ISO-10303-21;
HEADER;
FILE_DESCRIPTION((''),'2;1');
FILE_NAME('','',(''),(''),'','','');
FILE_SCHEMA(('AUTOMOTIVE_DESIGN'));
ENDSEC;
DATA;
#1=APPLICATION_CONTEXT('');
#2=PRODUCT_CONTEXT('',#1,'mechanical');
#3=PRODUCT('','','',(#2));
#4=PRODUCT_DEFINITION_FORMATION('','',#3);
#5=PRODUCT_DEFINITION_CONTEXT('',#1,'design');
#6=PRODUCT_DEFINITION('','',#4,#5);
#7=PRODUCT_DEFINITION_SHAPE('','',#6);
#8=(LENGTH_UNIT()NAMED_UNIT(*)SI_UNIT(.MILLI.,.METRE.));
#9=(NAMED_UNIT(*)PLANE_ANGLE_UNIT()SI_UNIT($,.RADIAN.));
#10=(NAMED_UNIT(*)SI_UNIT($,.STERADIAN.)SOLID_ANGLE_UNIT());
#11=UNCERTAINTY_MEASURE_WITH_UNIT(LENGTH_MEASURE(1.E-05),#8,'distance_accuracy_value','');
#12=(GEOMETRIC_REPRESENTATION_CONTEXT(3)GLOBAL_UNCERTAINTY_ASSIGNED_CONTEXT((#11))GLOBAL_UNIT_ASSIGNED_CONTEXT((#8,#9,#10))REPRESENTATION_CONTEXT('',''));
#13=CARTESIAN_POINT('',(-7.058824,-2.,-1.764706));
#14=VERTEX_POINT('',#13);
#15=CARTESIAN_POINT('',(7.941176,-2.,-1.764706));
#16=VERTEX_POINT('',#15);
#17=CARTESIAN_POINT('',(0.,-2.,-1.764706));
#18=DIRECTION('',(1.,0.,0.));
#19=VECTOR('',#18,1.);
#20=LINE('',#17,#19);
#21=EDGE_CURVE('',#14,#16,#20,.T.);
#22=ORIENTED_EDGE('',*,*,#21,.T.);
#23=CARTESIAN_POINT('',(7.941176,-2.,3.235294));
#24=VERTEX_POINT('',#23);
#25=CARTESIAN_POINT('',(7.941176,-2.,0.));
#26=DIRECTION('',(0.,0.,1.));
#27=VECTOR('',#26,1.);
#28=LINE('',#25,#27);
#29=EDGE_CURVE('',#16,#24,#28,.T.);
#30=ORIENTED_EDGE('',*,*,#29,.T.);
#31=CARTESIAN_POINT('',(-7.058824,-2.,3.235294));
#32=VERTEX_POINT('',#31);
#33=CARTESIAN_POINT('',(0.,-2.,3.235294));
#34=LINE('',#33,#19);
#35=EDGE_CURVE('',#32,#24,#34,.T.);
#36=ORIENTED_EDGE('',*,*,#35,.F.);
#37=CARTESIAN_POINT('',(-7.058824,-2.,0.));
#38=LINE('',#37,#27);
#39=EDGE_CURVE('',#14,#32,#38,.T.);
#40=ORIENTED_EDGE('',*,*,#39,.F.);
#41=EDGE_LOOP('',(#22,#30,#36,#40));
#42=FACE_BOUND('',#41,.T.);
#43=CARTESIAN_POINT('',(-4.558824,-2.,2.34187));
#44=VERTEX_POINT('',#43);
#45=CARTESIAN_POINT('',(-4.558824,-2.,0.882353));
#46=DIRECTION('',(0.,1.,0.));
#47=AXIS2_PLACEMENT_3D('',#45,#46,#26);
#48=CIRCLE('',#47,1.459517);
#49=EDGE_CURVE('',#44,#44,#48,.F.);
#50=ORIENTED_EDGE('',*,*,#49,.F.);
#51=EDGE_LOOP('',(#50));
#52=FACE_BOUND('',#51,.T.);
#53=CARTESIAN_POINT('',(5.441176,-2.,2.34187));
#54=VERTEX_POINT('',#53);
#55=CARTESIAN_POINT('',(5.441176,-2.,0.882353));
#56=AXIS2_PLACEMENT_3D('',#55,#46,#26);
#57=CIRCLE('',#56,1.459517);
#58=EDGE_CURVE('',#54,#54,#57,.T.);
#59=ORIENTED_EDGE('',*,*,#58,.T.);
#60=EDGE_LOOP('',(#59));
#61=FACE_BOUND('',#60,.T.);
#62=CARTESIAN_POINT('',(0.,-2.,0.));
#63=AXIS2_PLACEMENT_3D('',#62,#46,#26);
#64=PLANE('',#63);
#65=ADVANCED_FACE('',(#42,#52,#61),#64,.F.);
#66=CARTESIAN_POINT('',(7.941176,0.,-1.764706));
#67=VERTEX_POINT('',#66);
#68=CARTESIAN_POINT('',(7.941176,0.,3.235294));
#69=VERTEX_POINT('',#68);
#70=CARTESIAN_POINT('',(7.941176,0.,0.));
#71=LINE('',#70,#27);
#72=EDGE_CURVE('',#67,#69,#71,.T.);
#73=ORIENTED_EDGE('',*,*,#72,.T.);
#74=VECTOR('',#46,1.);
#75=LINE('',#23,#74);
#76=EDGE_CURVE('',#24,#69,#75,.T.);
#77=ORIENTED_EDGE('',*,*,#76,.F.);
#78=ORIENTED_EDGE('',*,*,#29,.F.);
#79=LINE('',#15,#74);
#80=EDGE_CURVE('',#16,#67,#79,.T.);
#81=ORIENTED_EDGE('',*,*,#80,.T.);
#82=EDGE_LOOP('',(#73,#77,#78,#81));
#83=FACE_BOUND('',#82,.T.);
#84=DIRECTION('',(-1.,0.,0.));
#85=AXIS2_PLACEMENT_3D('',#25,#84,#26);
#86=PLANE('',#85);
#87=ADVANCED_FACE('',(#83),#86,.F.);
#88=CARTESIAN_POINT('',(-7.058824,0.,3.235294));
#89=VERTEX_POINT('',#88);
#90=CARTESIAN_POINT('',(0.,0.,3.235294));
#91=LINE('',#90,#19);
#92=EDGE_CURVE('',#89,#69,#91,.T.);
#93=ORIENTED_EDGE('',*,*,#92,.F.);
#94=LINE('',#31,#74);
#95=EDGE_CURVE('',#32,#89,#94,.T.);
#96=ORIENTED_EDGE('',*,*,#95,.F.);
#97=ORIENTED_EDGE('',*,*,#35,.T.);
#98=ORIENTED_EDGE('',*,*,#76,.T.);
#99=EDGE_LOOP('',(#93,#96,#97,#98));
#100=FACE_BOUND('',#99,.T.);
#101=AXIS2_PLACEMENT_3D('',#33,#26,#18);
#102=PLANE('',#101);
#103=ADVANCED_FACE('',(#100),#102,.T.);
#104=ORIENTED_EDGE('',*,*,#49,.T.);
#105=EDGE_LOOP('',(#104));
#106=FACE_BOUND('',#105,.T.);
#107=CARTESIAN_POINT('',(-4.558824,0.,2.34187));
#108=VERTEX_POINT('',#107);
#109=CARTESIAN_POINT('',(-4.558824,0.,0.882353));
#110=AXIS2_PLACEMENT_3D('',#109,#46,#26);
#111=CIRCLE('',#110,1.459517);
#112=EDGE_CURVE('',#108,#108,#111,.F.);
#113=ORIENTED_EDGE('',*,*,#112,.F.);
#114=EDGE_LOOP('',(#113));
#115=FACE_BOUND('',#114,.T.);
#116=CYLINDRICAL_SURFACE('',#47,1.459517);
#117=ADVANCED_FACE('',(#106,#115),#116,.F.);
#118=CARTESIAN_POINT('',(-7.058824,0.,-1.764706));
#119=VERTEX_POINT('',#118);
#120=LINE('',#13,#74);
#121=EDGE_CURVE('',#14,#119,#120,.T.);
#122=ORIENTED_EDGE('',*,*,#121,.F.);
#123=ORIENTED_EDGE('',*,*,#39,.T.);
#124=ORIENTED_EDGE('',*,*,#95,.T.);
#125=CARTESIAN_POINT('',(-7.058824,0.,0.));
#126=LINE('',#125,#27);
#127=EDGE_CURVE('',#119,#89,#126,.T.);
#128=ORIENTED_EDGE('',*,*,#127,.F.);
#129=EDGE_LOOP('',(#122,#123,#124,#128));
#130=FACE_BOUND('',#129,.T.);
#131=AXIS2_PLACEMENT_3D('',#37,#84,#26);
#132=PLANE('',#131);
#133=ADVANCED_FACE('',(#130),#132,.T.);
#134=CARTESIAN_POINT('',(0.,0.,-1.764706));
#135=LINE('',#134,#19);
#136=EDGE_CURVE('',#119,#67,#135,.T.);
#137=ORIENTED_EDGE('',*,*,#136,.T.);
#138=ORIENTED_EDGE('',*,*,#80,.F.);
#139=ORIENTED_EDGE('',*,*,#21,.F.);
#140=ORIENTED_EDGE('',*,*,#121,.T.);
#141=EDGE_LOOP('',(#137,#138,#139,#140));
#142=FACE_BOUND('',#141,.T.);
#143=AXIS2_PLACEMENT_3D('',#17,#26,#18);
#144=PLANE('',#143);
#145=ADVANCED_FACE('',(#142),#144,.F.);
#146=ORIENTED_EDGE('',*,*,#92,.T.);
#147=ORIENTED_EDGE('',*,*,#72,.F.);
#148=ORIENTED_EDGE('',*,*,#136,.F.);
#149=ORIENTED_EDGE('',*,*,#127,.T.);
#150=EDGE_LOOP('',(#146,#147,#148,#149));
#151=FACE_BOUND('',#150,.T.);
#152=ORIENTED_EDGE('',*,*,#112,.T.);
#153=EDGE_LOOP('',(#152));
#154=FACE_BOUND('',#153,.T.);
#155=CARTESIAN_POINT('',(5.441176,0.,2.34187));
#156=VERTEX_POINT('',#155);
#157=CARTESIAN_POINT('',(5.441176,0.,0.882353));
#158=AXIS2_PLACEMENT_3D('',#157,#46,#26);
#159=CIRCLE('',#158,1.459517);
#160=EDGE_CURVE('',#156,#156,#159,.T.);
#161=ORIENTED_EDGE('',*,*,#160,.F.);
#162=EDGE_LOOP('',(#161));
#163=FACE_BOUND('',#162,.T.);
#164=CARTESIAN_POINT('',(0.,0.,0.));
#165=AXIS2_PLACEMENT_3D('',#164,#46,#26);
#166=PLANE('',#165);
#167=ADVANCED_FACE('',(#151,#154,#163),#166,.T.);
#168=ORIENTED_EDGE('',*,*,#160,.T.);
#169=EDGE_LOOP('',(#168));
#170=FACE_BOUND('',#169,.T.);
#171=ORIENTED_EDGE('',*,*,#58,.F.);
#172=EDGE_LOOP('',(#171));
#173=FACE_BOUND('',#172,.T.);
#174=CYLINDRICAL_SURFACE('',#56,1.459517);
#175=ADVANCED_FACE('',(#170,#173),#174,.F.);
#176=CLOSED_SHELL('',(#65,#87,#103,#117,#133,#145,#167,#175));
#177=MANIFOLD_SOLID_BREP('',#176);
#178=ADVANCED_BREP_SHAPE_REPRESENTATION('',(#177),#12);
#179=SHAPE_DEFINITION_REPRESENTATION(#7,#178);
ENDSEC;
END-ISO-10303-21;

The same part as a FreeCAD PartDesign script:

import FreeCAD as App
import Part
import Sketcher
from FreeCAD import Vector

doc = App.newDocument("Part")
body = doc.addObject("PartDesign::Body", "Body")

sketch1 = body.newObject("Sketcher::SketchObject", "Sketch")
sketch1.AttachmentSupport = (doc.getObject("XZ_Plane"), [""])
sketch1.MapMode = "FlatFace"
sketch1.addGeometry(Part.LineSegment(Vector(-7.1, -1.8, 0), Vector(-7.1, 3.2, 0)), False)
sketch1.addGeometry(Part.LineSegment(Vector(-7.1, 3.2, 0), Vector(7.9, 3.2, 0)), False)
sketch1.addGeometry(Part.LineSegment(Vector(7.9, 3.2, 0), Vector(7.9, -1.8, 0)), False)
sketch1.addGeometry(Part.LineSegment(Vector(7.9, -1.8, 0), Vector(-7.1, -1.8, 0)), False)
sketch1.addGeometry(Part.Circle(Vector(-4.6, 0.9, 0), Vector(0, 0, 1), 1.5), False)
sketch1.addGeometry(Part.Circle(Vector(5.4, 0.9, 0), Vector(0, 0, 1), 1.5), False)
sketch1.addConstraint(Sketcher.Constraint("Coincident", 0, 2, 1, 1))
sketch1.addConstraint(Sketcher.Constraint("Coincident", 1, 2, 2, 1))
sketch1.addConstraint(Sketcher.Constraint("Coincident", 2, 2, 3, 1))
sketch1.addConstraint(Sketcher.Constraint("Coincident", 3, 2, 0, 1))
sketch1.addConstraint(Sketcher.Constraint("Vertical", 0))
sketch1.addConstraint(Sketcher.Constraint("Horizontal", 1))
sketch1.addConstraint(Sketcher.Constraint("Vertical", 2))
sketch1.addConstraint(Sketcher.Constraint("Horizontal", 3))
sketch1.addConstraint(Sketcher.Constraint("Equal", 4, 5))
sketch1.addConstraint(Sketcher.Constraint("Horizontal", 4, 3, 5, 3))
sketch1.addConstraint(Sketcher.Constraint("DistanceX", 1, 1, 1, 2, 15.0))
sketch1.addConstraint(Sketcher.Constraint("DistanceY", 0, 1, 0, 2, 5.0))
sketch1.addConstraint(Sketcher.Constraint("DistanceX", 4, 3, 5, 3, 10.0))
sketch1.addConstraint(Sketcher.Constraint("DistanceX", 0, 2, 4, 3, 2.5))
sketch1.addConstraint(Sketcher.Constraint("Diameter", 4, 2.919034))
sketch1.addConstraint(Sketcher.Constraint("DistanceY", 4, 3, 0, 2, 2.352941))
sketch1.addConstraint(Sketcher.Constraint("DistanceX", 4, 3, -1, 1, 4.558824))
sketch1.addConstraint(Sketcher.Constraint("DistanceY", -1, 1, 4, 3, 0.882353))
pad1 = body.newObject("PartDesign::Pad", "Pad")
pad1.Profile = sketch1
pad1.Length = 2

doc.recompute()
